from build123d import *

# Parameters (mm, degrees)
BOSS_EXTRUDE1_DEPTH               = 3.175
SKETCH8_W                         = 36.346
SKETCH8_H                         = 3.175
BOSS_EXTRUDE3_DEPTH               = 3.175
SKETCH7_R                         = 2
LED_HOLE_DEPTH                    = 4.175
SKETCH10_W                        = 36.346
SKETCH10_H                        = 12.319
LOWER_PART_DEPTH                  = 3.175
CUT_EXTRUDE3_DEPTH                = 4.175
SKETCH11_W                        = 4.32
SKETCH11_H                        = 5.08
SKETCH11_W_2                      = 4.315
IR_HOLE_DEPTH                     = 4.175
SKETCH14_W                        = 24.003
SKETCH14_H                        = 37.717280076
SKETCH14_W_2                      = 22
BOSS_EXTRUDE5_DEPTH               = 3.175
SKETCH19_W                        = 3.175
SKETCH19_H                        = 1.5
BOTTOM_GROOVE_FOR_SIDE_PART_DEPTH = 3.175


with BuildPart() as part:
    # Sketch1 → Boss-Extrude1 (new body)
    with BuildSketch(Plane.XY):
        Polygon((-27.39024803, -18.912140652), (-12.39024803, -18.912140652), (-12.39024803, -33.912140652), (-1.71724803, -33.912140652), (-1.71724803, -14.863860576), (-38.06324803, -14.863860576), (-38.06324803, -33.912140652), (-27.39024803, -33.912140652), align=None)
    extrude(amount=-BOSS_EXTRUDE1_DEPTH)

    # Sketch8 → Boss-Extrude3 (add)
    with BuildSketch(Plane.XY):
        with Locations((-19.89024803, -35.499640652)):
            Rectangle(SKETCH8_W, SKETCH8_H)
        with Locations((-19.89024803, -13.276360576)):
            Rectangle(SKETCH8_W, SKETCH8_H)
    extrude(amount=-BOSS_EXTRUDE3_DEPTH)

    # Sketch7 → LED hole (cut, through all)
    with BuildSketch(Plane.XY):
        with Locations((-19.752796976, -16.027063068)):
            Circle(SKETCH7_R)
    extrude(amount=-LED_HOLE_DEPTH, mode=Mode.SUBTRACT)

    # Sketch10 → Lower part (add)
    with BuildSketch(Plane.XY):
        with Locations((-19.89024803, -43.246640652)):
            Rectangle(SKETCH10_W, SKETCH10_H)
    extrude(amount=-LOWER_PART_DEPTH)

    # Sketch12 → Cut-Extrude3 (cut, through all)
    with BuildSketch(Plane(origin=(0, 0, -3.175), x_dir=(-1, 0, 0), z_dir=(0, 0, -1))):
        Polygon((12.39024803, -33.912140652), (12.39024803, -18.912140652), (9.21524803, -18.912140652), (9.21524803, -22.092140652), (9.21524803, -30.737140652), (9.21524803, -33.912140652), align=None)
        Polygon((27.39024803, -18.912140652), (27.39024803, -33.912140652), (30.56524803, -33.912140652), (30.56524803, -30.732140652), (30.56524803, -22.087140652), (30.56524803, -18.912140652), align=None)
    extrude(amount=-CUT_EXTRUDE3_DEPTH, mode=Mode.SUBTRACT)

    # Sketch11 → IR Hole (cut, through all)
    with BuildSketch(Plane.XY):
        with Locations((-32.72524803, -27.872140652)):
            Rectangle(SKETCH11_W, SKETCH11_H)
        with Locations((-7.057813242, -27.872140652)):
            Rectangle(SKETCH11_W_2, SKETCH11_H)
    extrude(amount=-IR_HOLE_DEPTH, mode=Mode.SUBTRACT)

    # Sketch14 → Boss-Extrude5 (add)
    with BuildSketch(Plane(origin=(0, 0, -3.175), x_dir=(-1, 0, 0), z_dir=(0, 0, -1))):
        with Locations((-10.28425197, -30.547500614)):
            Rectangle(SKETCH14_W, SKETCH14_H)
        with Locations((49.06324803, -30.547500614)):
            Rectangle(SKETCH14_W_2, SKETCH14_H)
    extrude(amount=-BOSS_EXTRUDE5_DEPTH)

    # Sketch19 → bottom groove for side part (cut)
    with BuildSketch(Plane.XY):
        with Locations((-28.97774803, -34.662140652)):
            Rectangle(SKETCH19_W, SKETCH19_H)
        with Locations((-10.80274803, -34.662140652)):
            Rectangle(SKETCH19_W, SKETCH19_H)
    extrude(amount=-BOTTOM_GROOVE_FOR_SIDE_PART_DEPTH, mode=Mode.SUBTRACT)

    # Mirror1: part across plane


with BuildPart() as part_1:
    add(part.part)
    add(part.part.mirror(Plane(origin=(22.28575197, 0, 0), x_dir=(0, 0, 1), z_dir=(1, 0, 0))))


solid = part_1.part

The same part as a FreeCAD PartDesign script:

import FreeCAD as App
import Part
import Sketcher

V = App.Vector

doc = App.newDocument("Part")
body = doc.addObject("PartDesign::Body", "Body")

sketch1 = body.newObject("Sketcher::SketchObject", "Sketch")
sketch1.AttachmentSupport = (doc.getObject("XY_Plane"), [""])
sketch1.MapMode = "FlatFace"
sketch1.addGeometry(Part.LineSegment(V(-27, -19, 0), V(-12, -19, 0)), False)
sketch1.addGeometry(Part.LineSegment(V(-12, -19, 0), V(-12, -34, 0)), False)
sketch1.addGeometry(Part.LineSegment(V(-12, -34, 0), V(-2, -34, 0)), False)
sketch1.addGeometry(Part.LineSegment(V(-2, -34, 0), V(-2, -15, 0)), False)
sketch1.addGeometry(Part.LineSegment(V(-2, -15, 0), V(-38, -15, 0)), False)
sketch1.addGeometry(Part.LineSegment(V(-38, -15, 0), V(-38, -34, 0)), False)
sketch1.addGeometry(Part.LineSegment(V(-38, -34, 0), V(-27, -34, 0)), False)
sketch1.addGeometry(Part.LineSegment(V(-27, -34, 0), V(-27, -19, 0)), False)
sketch1.addConstraint(Sketcher.Constraint("Coincident", 0, 2, 1, 1))
sketch1.addConstraint(Sketcher.Constraint("Coincident", 1, 2, 2, 1))
sketch1.addConstraint(Sketcher.Constraint("Coincident", 2, 2, 3, 1))
sketch1.addConstraint(Sketcher.Constraint("Coincident", 3, 2, 4, 1))
sketch1.addConstraint(Sketcher.Constraint("Coincident", 4, 2, 5, 1))
sketch1.addConstraint(Sketcher.Constraint("Coincident", 5, 2, 6, 1))
sketch1.addConstraint(Sketcher.Constraint("Coincident", 6, 2, 7, 1))
sketch1.addConstraint(Sketcher.Constraint("Coincident", 7, 2, 0, 1))
sketch1.addConstraint(Sketcher.Constraint("Horizontal", 0))
sketch1.addConstraint(Sketcher.Constraint("Vertical", 1))
sketch1.addConstraint(Sketcher.Constraint("Horizontal", 2))
sketch1.addConstraint(Sketcher.Constraint("Vertical", 3))
sketch1.addConstraint(Sketcher.Constraint("Horizontal", 4))
sketch1.addConstraint(Sketcher.Constraint("Vertical", 5))
sketch1.addConstraint(Sketcher.Constraint("Horizontal", 6))
sketch1.addConstraint(Sketcher.Constraint("Vertical", 7))
sketch1.addConstraint(Sketcher.Constraint("Horizontal", 2, 2, 5, 2))
sketch1.addConstraint(Sketcher.Constraint("Equal", 2, 6))
sketch1.addConstraint(Sketcher.Constraint("Equal", 0, 1))
sketch1.addConstraint(Sketcher.Constraint("DistanceX", 0, 1, 0, 2, 15.0))
sketch1.addConstraint(Sketcher.Constraint("DistanceX", 2, 1, 2, 2, 10.673))
sketch1.addConstraint(Sketcher.Constraint("DistanceY", 3, 1, 3, 2, 19.04828))
sketch1.addConstraint(Sketcher.Constraint("DistanceX", 0, 2, -1, 1, 12.390248))
sketch1.addConstraint(Sketcher.Constraint("DistanceY", 0, 2, -1, 1, 18.912141))
pad1 = body.newObject("PartDesign::Pad", "Pad")
pad1.Profile = sketch1
pad1.Length = 3.175
pad1.Reversed = True

sketch2 = body.newObject("Sketcher::SketchObject", "Sketch001")
sketch2.AttachmentSupport = (doc.getObject("XY_Plane"), [""])
sketch2.MapMode = "FlatFace"
sketch2.addGeometry(Part.LineSegment(V(-38.1, -33.9, 0), V(-38.1, -37.1, 0)), False)
sketch2.addGeometry(Part.LineSegment(V(-38.1, -37.1, 0), V(-1.7, -37.1, 0)), False)
sketch2.addGeometry(Part.LineSegment(V(-1.7, -37.1, 0), V(-1.7, -33.9, 0)), False)
sketch2.addGeometry(Part.LineSegment(V(-1.7, -33.9, 0), V(-38.1, -33.9, 0)), False)
sketch2.addGeometry(Part.LineSegment(V(-38.1, -11.7, 0), V(-38.1, -14.9, 0)), False)
sketch2.addGeometry(Part.LineSegment(V(-38.1, -14.9, 0), V(-1.7, -14.9, 0)), False)
sketch2.addGeometry(Part.LineSegment(V(-1.7, -14.9, 0), V(-1.7, -11.7, 0)), False)
sketch2.addGeometry(Part.LineSegment(V(-1.7, -11.7, 0), V(-38.1, -11.7, 0)), False)
sketch2.addConstraint(Sketcher.Constraint("Coincident", 0, 2, 1, 1))
sketch2.addConstraint(Sketcher.Constraint("Coincident", 1, 2, 2, 1))
sketch2.addConstraint(Sketcher.Constraint("Coincident", 2, 2, 3, 1))
sketch2.addConstraint(Sketcher.Constraint("Coincident", 3, 2, 0, 1))
sketch2.addConstraint(Sketcher.Constraint("Coincident", 4, 2, 5, 1))
sketch2.addConstraint(Sketcher.Constraint("Coincident", 5, 2, 6, 1))
sketch2.addConstraint(Sketcher.Constraint("Coincident", 6, 2, 7, 1))
sketch2.addConstraint(Sketcher.Constraint("Coincident", 7, 2, 4, 1))
sketch2.addConstraint(Sketcher.Constraint("Vertical", 0))
sketch2.addConstraint(Sketcher.Constraint("Horizontal", 1))
sketch2.addConstraint(Sketcher.Constraint("Vertical", 2))
sketch2.addConstraint(Sketcher.Constraint("Horizontal", 3))
sketch2.addConstraint(Sketcher.Constraint("Vertical", 4))
sketch2.addConstraint(Sketcher.Constraint("Horizontal", 5))
sketch2.addConstraint(Sketcher.Constraint("Vertical", 6))
sketch2.addConstraint(Sketcher.Constraint("Horizontal", 7))
sketch2.addConstraint(Sketcher.Constraint("Vertical", 3, 2, 4, 2))
sketch2.addConstraint(Sketcher.Constraint("Vertical", 2, 2, 5, 2))
sketch2.addConstraint(Sketcher.Constraint("Equal", 2, 4))
sketch2.addConstraint(Sketcher.Constraint("DistanceX", 1, 1, 1, 2, 36.346))
sketch2.addConstraint(Sketcher.Constraint("DistanceY", 0, 2, 0, 1, 3.175))
sketch2.addConstraint(Sketcher.Constraint("DistanceX", 0, 2, -1, 1, 38.063248))
sketch2.addConstraint(Sketcher.Constraint("DistanceY", 0, 2, -1, 1, 37.087141))
sketch2.addConstraint(Sketcher.Constraint("DistanceY", 4, 2, -1, 1, 14.863861))
pad2 = body.newObject("PartDesign::Pad", "Pad001")
pad2.Profile = sketch2
pad2.Length = 3.175
pad2.Reversed = True

sketch3 = body.newObject("Sketcher::SketchObject", "Sketch002")
sketch3.AttachmentSupport = (doc.getObject("XY_Plane"), [""])
sketch3.MapMode = "FlatFace"
sketch3.addGeometry(Part.Circle(V(-19.8, -16, 0), V(0, 0, 1), 2), False)
sketch3.addConstraint(Sketcher.Constraint("Diameter", 0, 4.0))
sketch3.addConstraint(Sketcher.Constraint("DistanceX", 0, 3, -1, 1, 19.752797))
sketch3.addConstraint(Sketcher.Constraint("DistanceY", 0, 3, -1, 1, 16.027063))
pocket1 = body.newObject("PartDesign::Pocket", "Pocket")
pocket1.Profile = sketch3
pocket1.Type = "ThroughAll"

sketch4 = body.newObject("Sketcher::SketchObject", "Sketch003")
sketch4.AttachmentSupport = (doc.getObject("XY_Plane"), [""])
sketch4.MapMode = "FlatFace"
sketch4.addGeometry(Part.LineSegment(V(-38, -37, 0), V(-38, -49, 0)), False)
sketch4.addGeometry(Part.LineSegment(V(-38, -49, 0), V(-2, -49, 0)), False)
sketch4.addGeometry(Part.LineSegment(V(-2, -49, 0), V(-2, -37, 0)), False)
sketch4.addGeometry(Part.LineSegment(V(-2, -37, 0), V(-38, -37, 0)), False)
sketch4.addConstraint(Sketcher.Constraint("Coincident", 0, 2, 1, 1))
sketch4.addConstraint(Sketcher.Constraint("Coincident", 1, 2, 2, 1))
sketch4.addConstraint(Sketcher.Constraint("Coincident", 2, 2, 3, 1))
sketch4.addConstraint(Sketcher.Constraint("Coincident", 3, 2, 0, 1))
sketch4.addConstraint(Sketcher.Constraint("Vertical", 0))
sketch4.addConstraint(Sketcher.Constraint("Horizontal", 1))
sketch4.addConstraint(Sketcher.Constraint("Vertical", 2))
sketch4.addConstraint(Sketcher.Constraint("Horizontal", 3))
sketch4.addConstraint(Sketcher.Constraint("DistanceX", 1, 1, 1, 2, 36.346))
sketch4.addConstraint(Sketcher.Constraint("DistanceY", 0, 2, 0, 1, 12.319))
sketch4.addConstraint(Sketcher.Constraint("DistanceX", 0, 2, -1, 1, 38.063248))
sketch4.addConstraint(Sketcher.Constraint("DistanceY", 0, 2, -1, 1, 49.406141))
pad3 = body.newObject("PartDesign::Pad", "Pad002")
pad3.Profile = sketch4
pad3.Length = 3.175
pad3.Reversed = True

sketch5 = body.newObject("Sketcher::SketchObject", "Sketch004")
sketch5.AttachmentSupport = (doc.getObject("XY_Plane"), [""])
sketch5.MapMode = "FlatFace"
sketch5.AttachmentOffset = App.Placement(V(0, 0, -3.175), App.Rotation())
sketch5.addGeometry(Part.LineSegment(V(-12.4, -33.9, 0), V(-12.4, -18.9, 0)), False)
sketch5.addGeometry(Part.LineSegment(V(-12.4, -18.9, 0), V(-9.2, -18.9, 0)), False)
sketch5.addGeometry(Part.LineSegment(V(-9.2, -18.9, 0), V(-9.2, -33.9, 0)), False)
sketch5.addGeometry(Part.LineSegment(V(-9.2, -33.9, 0), V(-12.4, -33.9, 0)), False)
sketch5.addGeometry(Part.LineSegment(V(-27.4, -18.9, 0), V(-27.4, -33.9, 0)), False)
sketch5.addGeometry(Part.LineSegment(V(-27.4, -33.9, 0), V(-30.6, -33.9, 0)), False)
sketch5.addGeometry(Part.LineSegment(V(-30.6, -33.9, 0), V(-30.6, -18.9, 0)), False)
sketch5.addGeometry(Part.LineSegment(V(-30.6, -18.9, 0), V(-27.4, -18.9, 0)), False)
sketch5.addConstraint(Sketcher.Constraint("Coincident", 0, 2, 1, 1))
sketch5.addConstraint(Sketcher.Constraint("Coincident", 1, 2, 2, 1))
sketch5.addConstraint(Sketcher.Constraint("Coincident", 2, 2, 3, 1))
sketch5.addConstraint(Sketcher.Constraint("Coincident", 3, 2, 0, 1))
sketch5.addConstraint(Sketcher.Constraint("Coincident", 4, 2, 5, 1))
sketch5.addConstraint(Sketcher.Constraint("Coincident", 5, 2, 6, 1))
sketch5.addConstraint(Sketcher.Constraint("Coincident", 6, 2, 7, 1))
sketch5.addConstraint(Sketcher.Constraint("Coincident", 7, 2, 4, 1))
sketch5.addConstraint(Sketcher.Constraint("Vertical", 0))
sketch5.addConstraint(Sketcher.Constraint("Horizontal", 1))
sketch5.addConstraint(Sketcher.Constraint("Vertical", 2))
sketch5.addConstraint(Sketcher.Constraint("Horizontal", 3))
sketch5.addConstraint(Sketcher.Constraint("Vertical", 4))
sketch5.addConstraint(Sketcher.Constraint("Horizontal", 5))
sketch5.addConstraint(Sketcher.Constraint("Vertical", 6))
sketch5.addConstraint(Sketcher.Constraint("Horizontal", 7))
sketch5.addConstraint(Sketcher.Constraint("Horizontal", 3, 2, 4, 2))
sketch5.addConstraint(Sketcher.Constraint("Horizontal", 1, 2, 6, 2))
sketch5.addConstraint(Sketcher.Constraint("Equal", 3, 5))
sketch5.addConstraint(Sketcher.Constraint("DistanceY", 0, 1, 0, 2, 15.0))
sketch5.addConstraint(Sketcher.Constraint("DistanceX", 4, 2, 3, 2, 15.0))
sketch5.addConstraint(Sketcher.Constraint("DistanceX", 1, 1, 1, 2, 3.175))
sketch5.addConstraint(Sketcher.Constraint("DistanceX", 0, 2, -1, 1, 12.390248))
sketch5.addConstraint(Sketcher.Constraint("DistanceY", 0, 2, -1, 1, 18.912141))
pocket2 = body.newObject("PartDesign::Pocket", "Pocket001")
pocket2.Profile = sketch5
pocket2.Type = "ThroughAll"
pocket2.Reversed = True

sketch6 = body.newObject("Sketcher::SketchObject", "Sketch005")
sketch6.AttachmentSupport = (doc.getObject("XY_Plane"), [""])
sketch6.MapMode = "FlatFace"
sketch6.addGeometry(Part.LineSegment(V(-34.9, -25.3, 0), V(-34.9, -30.4, 0)), False)
sketch6.addGeometry(Part.LineSegment(V(-34.9, -30.4, 0), V(-30.6, -30.4, 0)), False)
sketch6.addGeometry(Part.LineSegment(V(-30.6, -30.4, 0), V(-30.6, -25.3, 0)), False)
sketch6.addGeometry(Part.LineSegment(V(-30.6, -25.3, 0), V(-34.9, -25.3, 0)), False)
sketch6.addGeometry(Part.LineSegment(V(-9.2, -25.3, 0), V(-9.2, -30.4, 0)), False)
sketch6.addGeometry(Part.LineSegment(V(-9.2, -30.4, 0), V(-4.9, -30.4, 0)), False)
sketch6.addGeometry(Part.LineSegment(V(-4.9, -30.4, 0), V(-4.9, -25.3, 0)), False)
sketch6.addGeometry(Part.LineSegment(V(-4.9, -25.3, 0), V(-9.2, -25.3, 0)), False)
sketch6.addConstraint(Sketcher.Constraint("Coincident", 0, 2, 1, 1))
sketch6.addConstraint(Sketcher.Constraint("Coincident", 1, 2, 2, 1))
sketch6.addConstraint(Sketcher.Constraint("Coincident", 2, 2, 3, 1))
sketch6.addConstraint(Sketcher.Constraint("Coincident", 3, 2, 0, 1))
sketch6.addConstraint(Sketcher.Constraint("Coincident", 4, 2, 5, 1))
sketch6.addConstraint(Sketcher.Constraint("Coincident", 5, 2, 6, 1))
sketch6.addConstraint(Sketcher.Constraint("Coincident", 6, 2, 7, 1))
sketch6.addConstraint(Sketcher.Constraint("Coincident", 7, 2, 4, 1))
sketch6.addConstraint(Sketcher.Constraint("Vertical", 0))
sketch6.addConstraint(Sketcher.Constraint("Horizontal", 1))
sketch6.addConstraint(Sketcher.Constraint("Vertical", 2))
sketch6.addConstraint(Sketcher.Constraint("Horizontal", 3))
sketch6.addConstraint(Sketcher.Constraint("Vertical", 4))
sketch6.addConstraint(Sketcher.Constraint("Horizontal", 5))
sketch6.addConstraint(Sketcher.Constraint("Vertical", 6))
sketch6.addConstraint(Sketcher.Constraint("Horizontal", 7))
sketch6.addConstraint(Sketcher.Constraint("Horizontal", 1, 2, 4, 2))
sketch6.addConstraint(Sketcher.Constraint("Horizontal", 3, 2, 6, 2))
sketch6.addConstraint(Sketcher.Constraint("DistanceX", 1, 1, 1, 2, 4.32))
sketch6.addConstraint(Sketcher.Constraint("DistanceY", 0, 2, 0, 1, 5.08))
sketch6.addConstraint(Sketcher.Constraint("DistanceX", 5, 1, 5, 2, 4.315))
sketch6.addConstraint(Sketcher.Constraint("DistanceX", 0, 2, -1, 1, 34.885248))
sketch6.addConstraint(Sketcher.Constraint("DistanceY", 0, 2, -1, 1, 30.412141))
sketch6.addConstraint(Sketcher.Constraint("DistanceX", 4, 2, -1, 1, 9.215313))
pocket3 = body.newObject("PartDesign::Pocket", "Pocket002")
pocket3.Profile = sketch6
pocket3.Type = "ThroughAll"

sketch7 = body.newObject("Sketcher::SketchObject", "Sketch006")
sketch7.AttachmentSupport = (doc.getObject("XY_Plane"), [""])
sketch7.MapMode = "FlatFace"
sketch7.AttachmentOffset = App.Placement(V(0, 0, -3.175), App.Rotation())
sketch7.addGeometry(Part.LineSegment(V(22, -12, 0), V(22, -49, 0)), False)
sketch7.addGeometry(Part.LineSegment(V(22, -49, 0), V(-2, -49, 0)), False)
sketch7.addGeometry(Part.LineSegment(V(-2, -49, 0), V(-2, -12, 0)), False)
sketch7.addGeometry(Part.LineSegment(V(-2, -12, 0), V(22, -12, 0)), False)
sketch7.addGeometry(Part.LineSegment(V(-38, -12, 0), V(-38, -49, 0)), False)
sketch7.addGeometry(Part.LineSegment(V(-38, -49, 0), V(-60, -49, 0)), False)
sketch7.addGeometry(Part.LineSegment(V(-60, -49, 0), V(-60, -12, 0)), False)
sketch7.addGeometry(Part.LineSegment(V(-60, -12, 0), V(-38, -12, 0)), False)
sketch7.addConstraint(Sketcher.Constraint("Coincident", 0, 2, 1, 1))
sketch7.addConstraint(Sketcher.Constraint("Coincident", 1, 2, 2, 1))
sketch7.addConstraint(Sketcher.Constraint("Coincident", 2, 2, 3, 1))
sketch7.addConstraint(Sketcher.Constraint("Coincident", 3, 2, 0, 1))
sketch7.addConstraint(Sketcher.Constraint("Coincident", 4, 2, 5, 1))
sketch7.addConstraint(Sketcher.Constraint("Coincident", 5, 2, 6, 1))
sketch7.addConstraint(Sketcher.Constraint("Coincident", 6, 2, 7, 1))
sketch7.addConstraint(Sketcher.Constraint("Coincident", 7, 2, 4, 1))
sketch7.addConstraint(Sketcher.Constraint("Vertical", 0))
sketch7.addConstraint(Sketcher.Constraint("Horizontal", 1))
sketch7.addConstraint(Sketcher.Constraint("Vertical", 2))
sketch7.addConstraint(Sketcher.Constraint("Horizontal", 3))
sketch7.addConstraint(Sketcher.Constraint("Vertical", 4))
sketch7.addConstraint(Sketcher.Constraint("Horizontal", 5))
sketch7.addConstraint(Sketcher.Constraint("Vertical", 6))
sketch7.addConstraint(Sketcher.Constraint("Horizontal", 7))
sketch7.addConstraint(Sketcher.Constraint("Horizontal", 1, 2, 4, 2))
sketch7.addConstraint(Sketcher.Constraint("Horizontal", 3, 2, 6, 2))
sketch7.addConstraint(Sketcher.Constraint("DistanceX", 5, 2, 5, 1, 22.0))
sketch7.addConstraint(Sketcher.Constraint("DistanceX", 1, 2, 1, 1, 24.003))
sketch7.addConstraint(Sketcher.Constraint("DistanceX", 4, 2, 1, 2, 36.346))
sketch7.addConstraint(Sketcher.Constraint("DistanceY", 0, 2, 0, 1, 37.71728))
sketch7.addConstraint(Sketcher.Constraint("DistanceX", -1, 1, 0, 2, 22.285752))
sketch7.addConstraint(Sketcher.Constraint("DistanceY", 0, 2, -1, 1, 49.406141))
pad4 = body.newObject("PartDesign::Pad", "Pad003")
pad4.Profile = sketch7
pad4.Length = 3.175

sketch8 = body.newObject("Sketcher::SketchObject", "Sketch007")
sketch8.AttachmentSupport = (doc.getObject("XY_Plane"), [""])
sketch8.MapMode = "FlatFace"
sketch8.addGeometry(Part.LineSegment(V(-30.6, -33.9, 0), V(-30.6, -35.4, 0)), False)
sketch8.addGeometry(Part.LineSegment(V(-30.6, -35.4, 0), V(-27.4, -35.4, 0)), False)
sketch8.addGeometry(Part.LineSegment(V(-27.4, -35.4, 0), V(-27.4, -33.9, 0)), False)
sketch8.addGeometry(Part.LineSegment(V(-27.4, -33.9, 0), V(-30.6, -33.9, 0)), False)
sketch8.addGeometry(Part.LineSegment(V(-12.4, -33.9, 0), V(-12.4, -35.4, 0)), False)
sketch8.addGeometry(Part.LineSegment(V(-12.4, -35.4, 0), V(-9.2, -35.4, 0)), False)
sketch8.addGeometry(Part.LineSegment(V(-9.2, -35.4, 0), V(-9.2, -33.9, 0)), False)
sketch8.addGeometry(Part.LineSegment(V(-9.2, -33.9, 0), V(-12.4, -33.9, 0)), False)
sketch8.addConstraint(Sketcher.Constraint("Coincident", 0, 2, 1, 1))
sketch8.addConstraint(Sketcher.Constraint("Coincident", 1, 2, 2, 1))
sketch8.addConstraint(Sketcher.Constraint("Coincident", 2, 2, 3, 1))
sketch8.addConstraint(Sketcher.Constraint("Coincident", 3, 2, 0, 1))
sketch8.addConstraint(Sketcher.Constraint("Coincident", 4, 2, 5, 1))
sketch8.addConstraint(Sketcher.Constraint("Coincident", 5, 2, 6, 1))
sketch8.addConstraint(Sketcher.Constraint("Coincident", 6, 2, 7, 1))
sketch8.addConstraint(Sketcher.Constraint("Coincident", 7, 2, 4, 1))
sketch8.addConstraint(Sketcher.Constraint("Vertical", 0))
sketch8.addConstraint(Sketcher.Constraint("Horizontal", 1))
sketch8.addConstraint(Sketcher.Constraint("Vertical", 2))
sketch8.addConstraint(Sketcher.Constraint("Horizontal", 3))
sketch8.addConstraint(Sketcher.Constraint("Vertical", 4))
sketch8.addConstraint(Sketcher.Constraint("Horizontal", 5))
sketch8.addConstraint(Sketcher.Constraint("Vertical", 6))
sketch8.addConstraint(Sketcher.Constraint("Horizontal", 7))
sketch8.addConstraint(Sketcher.Constraint("Horizontal", 1, 2, 4, 2))
sketch8.addConstraint(Sketcher.Constraint("Horizontal", 3, 2, 6, 2))
sketch8.addConstraint(Sketcher.Constraint("Equal", 3, 5))
sketch8.addConstraint(Sketcher.Constraint("DistanceY", 0, 2, 0, 1, 1.5))
sketch8.addConstraint(Sketcher.Constraint("DistanceX", 1, 2, 4, 2, 15.0))
sketch8.addConstraint(Sketcher.Constraint("DistanceX", 1, 1, 1, 2, 3.175))
sketch8.addConstraint(Sketcher.Constraint("DistanceX", 0, 2, -1, 1, 30.565248))
sketch8.addConstraint(Sketcher.Constraint("DistanceY", 0, 2, -1, 1, 35.412141))
pocket4 = body.newObject("PartDesign::Pocket", "Pocket003")
pocket4.Profile = sketch8
pocket4.Length = 3.175
body2 = doc.addObject("PartDesign::Body", "Body001")
doc.recompute()

body2.BaseFeature = body
doc.recompute()

mirroring = doc.addObject("Part::Mirroring", "Mirroring")
mirroring.Source = body
mirroring.Base = V(22.285752, 0, 0)
mirroring.Normal = V(1, 0, 0)
body3 = doc.addObject("PartDesign::Body", "Body002")
body3.BaseFeature = mirroring
boolean = body2.newObject("PartDesign::Boolean", "Boolean")
boolean.Type = "Fuse"
boolean.addObjects([body3])
doc.recompute()
mirroring.Visibility = False

doc.recompute()
